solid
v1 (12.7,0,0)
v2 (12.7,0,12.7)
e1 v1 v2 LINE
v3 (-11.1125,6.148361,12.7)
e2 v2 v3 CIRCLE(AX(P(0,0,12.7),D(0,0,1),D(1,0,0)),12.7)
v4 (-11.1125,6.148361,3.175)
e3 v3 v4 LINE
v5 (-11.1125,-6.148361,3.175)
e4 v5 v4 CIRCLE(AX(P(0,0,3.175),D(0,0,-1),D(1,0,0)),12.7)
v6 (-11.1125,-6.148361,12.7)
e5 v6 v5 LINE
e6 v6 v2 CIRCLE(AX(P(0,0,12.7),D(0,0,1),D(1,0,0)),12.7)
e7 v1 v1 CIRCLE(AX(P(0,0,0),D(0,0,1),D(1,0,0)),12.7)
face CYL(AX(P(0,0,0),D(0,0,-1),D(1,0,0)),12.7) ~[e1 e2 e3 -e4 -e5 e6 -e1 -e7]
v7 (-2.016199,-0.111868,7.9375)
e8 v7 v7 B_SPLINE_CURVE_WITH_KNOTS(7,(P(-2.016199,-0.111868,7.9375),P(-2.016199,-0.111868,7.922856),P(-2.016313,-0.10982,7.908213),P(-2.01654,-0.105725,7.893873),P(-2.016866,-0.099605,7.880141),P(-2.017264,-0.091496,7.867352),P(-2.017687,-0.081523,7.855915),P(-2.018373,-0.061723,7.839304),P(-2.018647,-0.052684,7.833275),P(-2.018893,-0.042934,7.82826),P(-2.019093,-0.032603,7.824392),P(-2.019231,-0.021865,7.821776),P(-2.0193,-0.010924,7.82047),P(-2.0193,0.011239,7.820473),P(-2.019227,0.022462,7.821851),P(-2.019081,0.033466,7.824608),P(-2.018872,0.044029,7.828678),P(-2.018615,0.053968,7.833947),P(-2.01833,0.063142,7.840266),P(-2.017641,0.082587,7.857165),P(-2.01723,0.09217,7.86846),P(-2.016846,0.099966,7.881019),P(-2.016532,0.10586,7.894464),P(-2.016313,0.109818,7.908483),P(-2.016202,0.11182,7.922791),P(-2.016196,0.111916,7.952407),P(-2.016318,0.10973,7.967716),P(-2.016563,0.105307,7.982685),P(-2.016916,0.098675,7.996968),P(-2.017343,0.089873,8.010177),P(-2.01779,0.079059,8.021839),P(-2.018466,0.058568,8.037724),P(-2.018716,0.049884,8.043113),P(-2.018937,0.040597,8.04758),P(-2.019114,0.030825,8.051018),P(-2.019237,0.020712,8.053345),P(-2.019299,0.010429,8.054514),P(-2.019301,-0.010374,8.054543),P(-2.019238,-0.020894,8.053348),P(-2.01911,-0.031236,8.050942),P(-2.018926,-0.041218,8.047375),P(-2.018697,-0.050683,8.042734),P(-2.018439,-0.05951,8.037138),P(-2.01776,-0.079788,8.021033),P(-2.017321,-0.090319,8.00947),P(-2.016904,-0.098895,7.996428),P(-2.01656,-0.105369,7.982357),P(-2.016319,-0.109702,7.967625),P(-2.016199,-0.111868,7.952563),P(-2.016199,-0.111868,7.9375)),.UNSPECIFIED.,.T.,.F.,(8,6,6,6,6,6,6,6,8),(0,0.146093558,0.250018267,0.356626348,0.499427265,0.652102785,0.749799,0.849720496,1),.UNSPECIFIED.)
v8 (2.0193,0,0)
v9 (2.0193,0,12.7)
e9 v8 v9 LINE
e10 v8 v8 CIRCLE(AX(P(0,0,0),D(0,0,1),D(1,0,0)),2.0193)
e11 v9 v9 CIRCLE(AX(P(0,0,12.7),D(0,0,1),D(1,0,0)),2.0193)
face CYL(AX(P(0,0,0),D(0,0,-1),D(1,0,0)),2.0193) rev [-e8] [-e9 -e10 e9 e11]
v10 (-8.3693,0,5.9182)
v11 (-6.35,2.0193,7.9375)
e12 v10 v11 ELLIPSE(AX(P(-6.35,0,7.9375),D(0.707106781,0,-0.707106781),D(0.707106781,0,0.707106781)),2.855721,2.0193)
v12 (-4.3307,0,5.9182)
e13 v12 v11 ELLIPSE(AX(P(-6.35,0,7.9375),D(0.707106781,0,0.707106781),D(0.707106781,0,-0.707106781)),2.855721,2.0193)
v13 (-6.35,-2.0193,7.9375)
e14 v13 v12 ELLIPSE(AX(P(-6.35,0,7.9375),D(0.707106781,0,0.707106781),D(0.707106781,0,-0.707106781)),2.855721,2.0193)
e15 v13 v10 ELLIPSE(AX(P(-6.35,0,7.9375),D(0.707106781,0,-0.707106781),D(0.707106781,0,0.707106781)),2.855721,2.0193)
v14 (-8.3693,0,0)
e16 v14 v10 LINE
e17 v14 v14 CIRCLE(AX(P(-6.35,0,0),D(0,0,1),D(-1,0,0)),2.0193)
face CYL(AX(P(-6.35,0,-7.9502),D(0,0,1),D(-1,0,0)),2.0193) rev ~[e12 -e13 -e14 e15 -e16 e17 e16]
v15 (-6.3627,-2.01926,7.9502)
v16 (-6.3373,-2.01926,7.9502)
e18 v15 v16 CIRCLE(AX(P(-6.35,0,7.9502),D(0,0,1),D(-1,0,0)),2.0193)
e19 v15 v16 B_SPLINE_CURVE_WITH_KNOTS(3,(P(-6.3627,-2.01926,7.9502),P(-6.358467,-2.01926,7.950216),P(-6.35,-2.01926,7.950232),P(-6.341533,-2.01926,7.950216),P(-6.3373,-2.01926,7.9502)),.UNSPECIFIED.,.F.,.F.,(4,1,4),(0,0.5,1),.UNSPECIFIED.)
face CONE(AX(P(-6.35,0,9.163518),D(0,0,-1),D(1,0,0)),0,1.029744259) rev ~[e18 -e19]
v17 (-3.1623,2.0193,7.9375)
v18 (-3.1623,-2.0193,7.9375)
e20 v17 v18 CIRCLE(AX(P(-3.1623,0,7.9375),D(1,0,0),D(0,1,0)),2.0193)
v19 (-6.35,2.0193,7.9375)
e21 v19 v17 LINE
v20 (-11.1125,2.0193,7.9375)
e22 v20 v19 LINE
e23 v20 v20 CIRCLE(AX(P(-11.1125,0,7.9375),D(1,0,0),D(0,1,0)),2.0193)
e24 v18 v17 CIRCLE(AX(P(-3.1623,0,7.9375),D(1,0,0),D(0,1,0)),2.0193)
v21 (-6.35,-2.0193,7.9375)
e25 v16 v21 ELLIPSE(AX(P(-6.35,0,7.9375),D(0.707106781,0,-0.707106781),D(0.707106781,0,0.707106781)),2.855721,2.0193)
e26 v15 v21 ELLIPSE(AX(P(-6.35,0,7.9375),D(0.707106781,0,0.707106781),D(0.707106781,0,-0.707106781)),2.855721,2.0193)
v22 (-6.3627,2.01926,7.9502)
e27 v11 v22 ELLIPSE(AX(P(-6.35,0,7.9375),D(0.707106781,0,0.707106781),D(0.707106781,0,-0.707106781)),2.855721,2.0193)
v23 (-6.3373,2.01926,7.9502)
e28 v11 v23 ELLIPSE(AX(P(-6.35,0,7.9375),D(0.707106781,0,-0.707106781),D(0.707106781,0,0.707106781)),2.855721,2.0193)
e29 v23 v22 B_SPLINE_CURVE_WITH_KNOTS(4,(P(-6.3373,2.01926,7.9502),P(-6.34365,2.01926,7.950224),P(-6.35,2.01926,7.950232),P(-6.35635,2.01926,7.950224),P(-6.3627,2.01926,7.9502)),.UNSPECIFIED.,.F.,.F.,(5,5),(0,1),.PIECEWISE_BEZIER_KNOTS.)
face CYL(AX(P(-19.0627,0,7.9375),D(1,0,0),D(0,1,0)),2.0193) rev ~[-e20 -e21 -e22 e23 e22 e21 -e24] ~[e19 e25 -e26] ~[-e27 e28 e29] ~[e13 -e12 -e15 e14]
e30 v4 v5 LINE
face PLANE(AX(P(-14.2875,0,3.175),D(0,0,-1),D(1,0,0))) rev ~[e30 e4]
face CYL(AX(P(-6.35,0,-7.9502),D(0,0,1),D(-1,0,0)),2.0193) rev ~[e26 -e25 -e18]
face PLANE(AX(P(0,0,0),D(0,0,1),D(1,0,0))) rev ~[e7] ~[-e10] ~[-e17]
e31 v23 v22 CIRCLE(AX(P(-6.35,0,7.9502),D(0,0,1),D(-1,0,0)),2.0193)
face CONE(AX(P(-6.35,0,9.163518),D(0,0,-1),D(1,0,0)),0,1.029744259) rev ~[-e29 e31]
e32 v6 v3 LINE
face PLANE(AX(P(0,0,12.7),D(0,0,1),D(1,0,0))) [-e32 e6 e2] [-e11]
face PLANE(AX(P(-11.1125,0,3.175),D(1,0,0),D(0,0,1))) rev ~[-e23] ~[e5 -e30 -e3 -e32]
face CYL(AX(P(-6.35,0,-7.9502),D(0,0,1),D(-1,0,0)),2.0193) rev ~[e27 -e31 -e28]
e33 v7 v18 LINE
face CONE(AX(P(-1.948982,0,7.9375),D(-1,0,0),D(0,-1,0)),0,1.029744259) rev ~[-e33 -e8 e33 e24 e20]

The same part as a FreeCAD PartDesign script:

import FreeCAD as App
import Part
import Sketcher
from FreeCAD import Vector
Q = App.Units.Quantity


def add_polygon(sketch, points):
    """Adds a closed chain of lines whose ends are joined by coincident constraints."""
    first, n = sketch.GeometryCount, len(points)
    for a, b in zip(points, points[1:] + points[:1]):
        sketch.addGeometry(Part.LineSegment(App.Vector(*a, 0), App.Vector(*b, 0)), False)
    for i in range(n):
        sketch.addConstraint(Sketcher.Constraint("Coincident", first + i, 2, first + (i + 1) % n, 1))

doc = App.newDocument("Part")
body = doc.addObject("PartDesign::Body", "Body")

sketch1 = doc.addObject("Sketcher::SketchObject", "Sketch")
body.addObject(sketch1)
sketch1.AttachmentSupport = (doc.XY_Plane, [""])
sketch1.MapMode = "FlatFace"
sketch1.addGeometry(Part.Circle(Vector(0, 0, 0), Vector(0, 0, 1), 12.7), False)
sketch1.addGeometry(Part.Circle(Vector(0, 0, 0), Vector(0, 0, 1), 2.0193), False)
sketch1.addConstraint(Sketcher.Constraint("Coincident", 0, 3, -1, 1))
sketch1.addConstraint(Sketcher.Constraint("Coincident", 1, 3, -1, 1))
sketch1.addConstraint(Sketcher.Constraint("Diameter", 0, Q("1 in")))
sketch1.addConstraint(Sketcher.Constraint("Diameter", 1, Q("0.159 in")))
pad1 = doc.addObject("PartDesign::Pad", "Pad")
body.addObject(pad1)
pad1.Profile = sketch1
pad1.Length = Q("0.5 in")

sketch2 = doc.addObject("Sketcher::SketchObject", "Sketch001")
body.addObject(sketch2)
sketch2.AttachmentSupport = (doc.XZ_Plane, [""])
sketch2.MapMode = "FlatFace"
add_polygon(sketch2, [(-14.2875, 15.875), (-14.2875, 3.175), (-11.1125, 3.175), (-11.1125, 15.875)])
sketch2.addConstraint(Sketcher.Constraint("Vertical", 0))
sketch2.addConstraint(Sketcher.Constraint("Horizontal", 1))
sketch2.addConstraint(Sketcher.Constraint("Vertical", 2))
sketch2.addConstraint(Sketcher.Constraint("Horizontal", 3))
sketch2.addConstraint(Sketcher.Constraint("DistanceY", 0, 2, 0, 1, Q("0.5 in")))
sketch2.addConstraint(Sketcher.Constraint("DistanceX", 1, 1, 1, 2, Q("0.125 in")))
sketch2.addConstraint(Sketcher.Constraint("DistanceX", 0, 2, -1, 1, Q("0.5625 in")))
sketch2.addConstraint(Sketcher.Constraint("DistanceY", -1, 1, 0, 2, Q("0.125 in")))
pocket1 = doc.addObject("PartDesign::Pocket", "Pocket")
body.addObject(pocket1)
pocket1.Profile = sketch2
pocket1.Length = Q("1 in")
pocket1.Midplane = True

sketch3 = doc.addObject("Sketcher::SketchObject", "Sketch002")
body.addObject(sketch3)
sketch3.AttachmentSupport = (doc.YZ_Plane, [""])
sketch3.MapMode = "FlatFace"
sketch3.AttachmentOffset = App.Placement(Vector(0, 0, -0.4375 * 25.4), App.Rotation())
sketch3.addGeometry(Part.Circle(Vector(0, 7.9375, 0), Vector(0, 0, 1), 2.0193), False)
sketch3.addConstraint(Sketcher.Constraint("PointOnObject", 0, 3, -2))
sketch3.addConstraint(Sketcher.Constraint("Diameter", 0, Q("0.159 in")))
sketch3.addConstraint(Sketcher.Constraint("DistanceY", -1, 1, 0, 3, Q("0.3125 in")))
doc.recompute()
hole = doc.addObject("PartDesign::Hole", "Hole")
body.addObject(hole)
hole.Profile = sketch3
hole.ThreadType = "None"
hole.Diameter = Q("0.159 in")
hole.DepthType = "Dimension"
hole.Depth = Q("0.313 in")
hole.DrillPoint = "Angled"
hole.DrillPointAngle = 118
hole.Reversed = True

sketch4 = doc.addObject("Sketcher::SketchObject", "Sketch003")
body.addObject(sketch4)
sketch4.AttachmentSupport = (doc.XY_Plane, [""])
sketch4.MapMode = "FlatFace"
sketch4.addGeometry(Part.Circle(Vector(-6.35, 0, 0), Vector(0, 0, 1), 2.0193), False)
sketch4.addConstraint(Sketcher.Constraint("PointOnObject", 0, 3, -1))
sketch4.addConstraint(Sketcher.Constraint("Diameter", 0, Q("0.159 in")))
sketch4.addConstraint(Sketcher.Constraint("DistanceX", 0, 3, -1, 1, Q("0.25 in")))
doc.recompute()
hole2 = doc.addObject("PartDesign::Hole", "Hole001")
body.addObject(hole2)
hole2.Profile = sketch4
hole2.ThreadType = "None"
hole2.Diameter = Q("0.159 in")
hole2.DepthType = "Dimension"
hole2.Depth = Q("0.313 in")
hole2.DrillPoint = "Angled"
hole2.DrillPointAngle = 118
hole2.Reversed = True

doc.recompute()
